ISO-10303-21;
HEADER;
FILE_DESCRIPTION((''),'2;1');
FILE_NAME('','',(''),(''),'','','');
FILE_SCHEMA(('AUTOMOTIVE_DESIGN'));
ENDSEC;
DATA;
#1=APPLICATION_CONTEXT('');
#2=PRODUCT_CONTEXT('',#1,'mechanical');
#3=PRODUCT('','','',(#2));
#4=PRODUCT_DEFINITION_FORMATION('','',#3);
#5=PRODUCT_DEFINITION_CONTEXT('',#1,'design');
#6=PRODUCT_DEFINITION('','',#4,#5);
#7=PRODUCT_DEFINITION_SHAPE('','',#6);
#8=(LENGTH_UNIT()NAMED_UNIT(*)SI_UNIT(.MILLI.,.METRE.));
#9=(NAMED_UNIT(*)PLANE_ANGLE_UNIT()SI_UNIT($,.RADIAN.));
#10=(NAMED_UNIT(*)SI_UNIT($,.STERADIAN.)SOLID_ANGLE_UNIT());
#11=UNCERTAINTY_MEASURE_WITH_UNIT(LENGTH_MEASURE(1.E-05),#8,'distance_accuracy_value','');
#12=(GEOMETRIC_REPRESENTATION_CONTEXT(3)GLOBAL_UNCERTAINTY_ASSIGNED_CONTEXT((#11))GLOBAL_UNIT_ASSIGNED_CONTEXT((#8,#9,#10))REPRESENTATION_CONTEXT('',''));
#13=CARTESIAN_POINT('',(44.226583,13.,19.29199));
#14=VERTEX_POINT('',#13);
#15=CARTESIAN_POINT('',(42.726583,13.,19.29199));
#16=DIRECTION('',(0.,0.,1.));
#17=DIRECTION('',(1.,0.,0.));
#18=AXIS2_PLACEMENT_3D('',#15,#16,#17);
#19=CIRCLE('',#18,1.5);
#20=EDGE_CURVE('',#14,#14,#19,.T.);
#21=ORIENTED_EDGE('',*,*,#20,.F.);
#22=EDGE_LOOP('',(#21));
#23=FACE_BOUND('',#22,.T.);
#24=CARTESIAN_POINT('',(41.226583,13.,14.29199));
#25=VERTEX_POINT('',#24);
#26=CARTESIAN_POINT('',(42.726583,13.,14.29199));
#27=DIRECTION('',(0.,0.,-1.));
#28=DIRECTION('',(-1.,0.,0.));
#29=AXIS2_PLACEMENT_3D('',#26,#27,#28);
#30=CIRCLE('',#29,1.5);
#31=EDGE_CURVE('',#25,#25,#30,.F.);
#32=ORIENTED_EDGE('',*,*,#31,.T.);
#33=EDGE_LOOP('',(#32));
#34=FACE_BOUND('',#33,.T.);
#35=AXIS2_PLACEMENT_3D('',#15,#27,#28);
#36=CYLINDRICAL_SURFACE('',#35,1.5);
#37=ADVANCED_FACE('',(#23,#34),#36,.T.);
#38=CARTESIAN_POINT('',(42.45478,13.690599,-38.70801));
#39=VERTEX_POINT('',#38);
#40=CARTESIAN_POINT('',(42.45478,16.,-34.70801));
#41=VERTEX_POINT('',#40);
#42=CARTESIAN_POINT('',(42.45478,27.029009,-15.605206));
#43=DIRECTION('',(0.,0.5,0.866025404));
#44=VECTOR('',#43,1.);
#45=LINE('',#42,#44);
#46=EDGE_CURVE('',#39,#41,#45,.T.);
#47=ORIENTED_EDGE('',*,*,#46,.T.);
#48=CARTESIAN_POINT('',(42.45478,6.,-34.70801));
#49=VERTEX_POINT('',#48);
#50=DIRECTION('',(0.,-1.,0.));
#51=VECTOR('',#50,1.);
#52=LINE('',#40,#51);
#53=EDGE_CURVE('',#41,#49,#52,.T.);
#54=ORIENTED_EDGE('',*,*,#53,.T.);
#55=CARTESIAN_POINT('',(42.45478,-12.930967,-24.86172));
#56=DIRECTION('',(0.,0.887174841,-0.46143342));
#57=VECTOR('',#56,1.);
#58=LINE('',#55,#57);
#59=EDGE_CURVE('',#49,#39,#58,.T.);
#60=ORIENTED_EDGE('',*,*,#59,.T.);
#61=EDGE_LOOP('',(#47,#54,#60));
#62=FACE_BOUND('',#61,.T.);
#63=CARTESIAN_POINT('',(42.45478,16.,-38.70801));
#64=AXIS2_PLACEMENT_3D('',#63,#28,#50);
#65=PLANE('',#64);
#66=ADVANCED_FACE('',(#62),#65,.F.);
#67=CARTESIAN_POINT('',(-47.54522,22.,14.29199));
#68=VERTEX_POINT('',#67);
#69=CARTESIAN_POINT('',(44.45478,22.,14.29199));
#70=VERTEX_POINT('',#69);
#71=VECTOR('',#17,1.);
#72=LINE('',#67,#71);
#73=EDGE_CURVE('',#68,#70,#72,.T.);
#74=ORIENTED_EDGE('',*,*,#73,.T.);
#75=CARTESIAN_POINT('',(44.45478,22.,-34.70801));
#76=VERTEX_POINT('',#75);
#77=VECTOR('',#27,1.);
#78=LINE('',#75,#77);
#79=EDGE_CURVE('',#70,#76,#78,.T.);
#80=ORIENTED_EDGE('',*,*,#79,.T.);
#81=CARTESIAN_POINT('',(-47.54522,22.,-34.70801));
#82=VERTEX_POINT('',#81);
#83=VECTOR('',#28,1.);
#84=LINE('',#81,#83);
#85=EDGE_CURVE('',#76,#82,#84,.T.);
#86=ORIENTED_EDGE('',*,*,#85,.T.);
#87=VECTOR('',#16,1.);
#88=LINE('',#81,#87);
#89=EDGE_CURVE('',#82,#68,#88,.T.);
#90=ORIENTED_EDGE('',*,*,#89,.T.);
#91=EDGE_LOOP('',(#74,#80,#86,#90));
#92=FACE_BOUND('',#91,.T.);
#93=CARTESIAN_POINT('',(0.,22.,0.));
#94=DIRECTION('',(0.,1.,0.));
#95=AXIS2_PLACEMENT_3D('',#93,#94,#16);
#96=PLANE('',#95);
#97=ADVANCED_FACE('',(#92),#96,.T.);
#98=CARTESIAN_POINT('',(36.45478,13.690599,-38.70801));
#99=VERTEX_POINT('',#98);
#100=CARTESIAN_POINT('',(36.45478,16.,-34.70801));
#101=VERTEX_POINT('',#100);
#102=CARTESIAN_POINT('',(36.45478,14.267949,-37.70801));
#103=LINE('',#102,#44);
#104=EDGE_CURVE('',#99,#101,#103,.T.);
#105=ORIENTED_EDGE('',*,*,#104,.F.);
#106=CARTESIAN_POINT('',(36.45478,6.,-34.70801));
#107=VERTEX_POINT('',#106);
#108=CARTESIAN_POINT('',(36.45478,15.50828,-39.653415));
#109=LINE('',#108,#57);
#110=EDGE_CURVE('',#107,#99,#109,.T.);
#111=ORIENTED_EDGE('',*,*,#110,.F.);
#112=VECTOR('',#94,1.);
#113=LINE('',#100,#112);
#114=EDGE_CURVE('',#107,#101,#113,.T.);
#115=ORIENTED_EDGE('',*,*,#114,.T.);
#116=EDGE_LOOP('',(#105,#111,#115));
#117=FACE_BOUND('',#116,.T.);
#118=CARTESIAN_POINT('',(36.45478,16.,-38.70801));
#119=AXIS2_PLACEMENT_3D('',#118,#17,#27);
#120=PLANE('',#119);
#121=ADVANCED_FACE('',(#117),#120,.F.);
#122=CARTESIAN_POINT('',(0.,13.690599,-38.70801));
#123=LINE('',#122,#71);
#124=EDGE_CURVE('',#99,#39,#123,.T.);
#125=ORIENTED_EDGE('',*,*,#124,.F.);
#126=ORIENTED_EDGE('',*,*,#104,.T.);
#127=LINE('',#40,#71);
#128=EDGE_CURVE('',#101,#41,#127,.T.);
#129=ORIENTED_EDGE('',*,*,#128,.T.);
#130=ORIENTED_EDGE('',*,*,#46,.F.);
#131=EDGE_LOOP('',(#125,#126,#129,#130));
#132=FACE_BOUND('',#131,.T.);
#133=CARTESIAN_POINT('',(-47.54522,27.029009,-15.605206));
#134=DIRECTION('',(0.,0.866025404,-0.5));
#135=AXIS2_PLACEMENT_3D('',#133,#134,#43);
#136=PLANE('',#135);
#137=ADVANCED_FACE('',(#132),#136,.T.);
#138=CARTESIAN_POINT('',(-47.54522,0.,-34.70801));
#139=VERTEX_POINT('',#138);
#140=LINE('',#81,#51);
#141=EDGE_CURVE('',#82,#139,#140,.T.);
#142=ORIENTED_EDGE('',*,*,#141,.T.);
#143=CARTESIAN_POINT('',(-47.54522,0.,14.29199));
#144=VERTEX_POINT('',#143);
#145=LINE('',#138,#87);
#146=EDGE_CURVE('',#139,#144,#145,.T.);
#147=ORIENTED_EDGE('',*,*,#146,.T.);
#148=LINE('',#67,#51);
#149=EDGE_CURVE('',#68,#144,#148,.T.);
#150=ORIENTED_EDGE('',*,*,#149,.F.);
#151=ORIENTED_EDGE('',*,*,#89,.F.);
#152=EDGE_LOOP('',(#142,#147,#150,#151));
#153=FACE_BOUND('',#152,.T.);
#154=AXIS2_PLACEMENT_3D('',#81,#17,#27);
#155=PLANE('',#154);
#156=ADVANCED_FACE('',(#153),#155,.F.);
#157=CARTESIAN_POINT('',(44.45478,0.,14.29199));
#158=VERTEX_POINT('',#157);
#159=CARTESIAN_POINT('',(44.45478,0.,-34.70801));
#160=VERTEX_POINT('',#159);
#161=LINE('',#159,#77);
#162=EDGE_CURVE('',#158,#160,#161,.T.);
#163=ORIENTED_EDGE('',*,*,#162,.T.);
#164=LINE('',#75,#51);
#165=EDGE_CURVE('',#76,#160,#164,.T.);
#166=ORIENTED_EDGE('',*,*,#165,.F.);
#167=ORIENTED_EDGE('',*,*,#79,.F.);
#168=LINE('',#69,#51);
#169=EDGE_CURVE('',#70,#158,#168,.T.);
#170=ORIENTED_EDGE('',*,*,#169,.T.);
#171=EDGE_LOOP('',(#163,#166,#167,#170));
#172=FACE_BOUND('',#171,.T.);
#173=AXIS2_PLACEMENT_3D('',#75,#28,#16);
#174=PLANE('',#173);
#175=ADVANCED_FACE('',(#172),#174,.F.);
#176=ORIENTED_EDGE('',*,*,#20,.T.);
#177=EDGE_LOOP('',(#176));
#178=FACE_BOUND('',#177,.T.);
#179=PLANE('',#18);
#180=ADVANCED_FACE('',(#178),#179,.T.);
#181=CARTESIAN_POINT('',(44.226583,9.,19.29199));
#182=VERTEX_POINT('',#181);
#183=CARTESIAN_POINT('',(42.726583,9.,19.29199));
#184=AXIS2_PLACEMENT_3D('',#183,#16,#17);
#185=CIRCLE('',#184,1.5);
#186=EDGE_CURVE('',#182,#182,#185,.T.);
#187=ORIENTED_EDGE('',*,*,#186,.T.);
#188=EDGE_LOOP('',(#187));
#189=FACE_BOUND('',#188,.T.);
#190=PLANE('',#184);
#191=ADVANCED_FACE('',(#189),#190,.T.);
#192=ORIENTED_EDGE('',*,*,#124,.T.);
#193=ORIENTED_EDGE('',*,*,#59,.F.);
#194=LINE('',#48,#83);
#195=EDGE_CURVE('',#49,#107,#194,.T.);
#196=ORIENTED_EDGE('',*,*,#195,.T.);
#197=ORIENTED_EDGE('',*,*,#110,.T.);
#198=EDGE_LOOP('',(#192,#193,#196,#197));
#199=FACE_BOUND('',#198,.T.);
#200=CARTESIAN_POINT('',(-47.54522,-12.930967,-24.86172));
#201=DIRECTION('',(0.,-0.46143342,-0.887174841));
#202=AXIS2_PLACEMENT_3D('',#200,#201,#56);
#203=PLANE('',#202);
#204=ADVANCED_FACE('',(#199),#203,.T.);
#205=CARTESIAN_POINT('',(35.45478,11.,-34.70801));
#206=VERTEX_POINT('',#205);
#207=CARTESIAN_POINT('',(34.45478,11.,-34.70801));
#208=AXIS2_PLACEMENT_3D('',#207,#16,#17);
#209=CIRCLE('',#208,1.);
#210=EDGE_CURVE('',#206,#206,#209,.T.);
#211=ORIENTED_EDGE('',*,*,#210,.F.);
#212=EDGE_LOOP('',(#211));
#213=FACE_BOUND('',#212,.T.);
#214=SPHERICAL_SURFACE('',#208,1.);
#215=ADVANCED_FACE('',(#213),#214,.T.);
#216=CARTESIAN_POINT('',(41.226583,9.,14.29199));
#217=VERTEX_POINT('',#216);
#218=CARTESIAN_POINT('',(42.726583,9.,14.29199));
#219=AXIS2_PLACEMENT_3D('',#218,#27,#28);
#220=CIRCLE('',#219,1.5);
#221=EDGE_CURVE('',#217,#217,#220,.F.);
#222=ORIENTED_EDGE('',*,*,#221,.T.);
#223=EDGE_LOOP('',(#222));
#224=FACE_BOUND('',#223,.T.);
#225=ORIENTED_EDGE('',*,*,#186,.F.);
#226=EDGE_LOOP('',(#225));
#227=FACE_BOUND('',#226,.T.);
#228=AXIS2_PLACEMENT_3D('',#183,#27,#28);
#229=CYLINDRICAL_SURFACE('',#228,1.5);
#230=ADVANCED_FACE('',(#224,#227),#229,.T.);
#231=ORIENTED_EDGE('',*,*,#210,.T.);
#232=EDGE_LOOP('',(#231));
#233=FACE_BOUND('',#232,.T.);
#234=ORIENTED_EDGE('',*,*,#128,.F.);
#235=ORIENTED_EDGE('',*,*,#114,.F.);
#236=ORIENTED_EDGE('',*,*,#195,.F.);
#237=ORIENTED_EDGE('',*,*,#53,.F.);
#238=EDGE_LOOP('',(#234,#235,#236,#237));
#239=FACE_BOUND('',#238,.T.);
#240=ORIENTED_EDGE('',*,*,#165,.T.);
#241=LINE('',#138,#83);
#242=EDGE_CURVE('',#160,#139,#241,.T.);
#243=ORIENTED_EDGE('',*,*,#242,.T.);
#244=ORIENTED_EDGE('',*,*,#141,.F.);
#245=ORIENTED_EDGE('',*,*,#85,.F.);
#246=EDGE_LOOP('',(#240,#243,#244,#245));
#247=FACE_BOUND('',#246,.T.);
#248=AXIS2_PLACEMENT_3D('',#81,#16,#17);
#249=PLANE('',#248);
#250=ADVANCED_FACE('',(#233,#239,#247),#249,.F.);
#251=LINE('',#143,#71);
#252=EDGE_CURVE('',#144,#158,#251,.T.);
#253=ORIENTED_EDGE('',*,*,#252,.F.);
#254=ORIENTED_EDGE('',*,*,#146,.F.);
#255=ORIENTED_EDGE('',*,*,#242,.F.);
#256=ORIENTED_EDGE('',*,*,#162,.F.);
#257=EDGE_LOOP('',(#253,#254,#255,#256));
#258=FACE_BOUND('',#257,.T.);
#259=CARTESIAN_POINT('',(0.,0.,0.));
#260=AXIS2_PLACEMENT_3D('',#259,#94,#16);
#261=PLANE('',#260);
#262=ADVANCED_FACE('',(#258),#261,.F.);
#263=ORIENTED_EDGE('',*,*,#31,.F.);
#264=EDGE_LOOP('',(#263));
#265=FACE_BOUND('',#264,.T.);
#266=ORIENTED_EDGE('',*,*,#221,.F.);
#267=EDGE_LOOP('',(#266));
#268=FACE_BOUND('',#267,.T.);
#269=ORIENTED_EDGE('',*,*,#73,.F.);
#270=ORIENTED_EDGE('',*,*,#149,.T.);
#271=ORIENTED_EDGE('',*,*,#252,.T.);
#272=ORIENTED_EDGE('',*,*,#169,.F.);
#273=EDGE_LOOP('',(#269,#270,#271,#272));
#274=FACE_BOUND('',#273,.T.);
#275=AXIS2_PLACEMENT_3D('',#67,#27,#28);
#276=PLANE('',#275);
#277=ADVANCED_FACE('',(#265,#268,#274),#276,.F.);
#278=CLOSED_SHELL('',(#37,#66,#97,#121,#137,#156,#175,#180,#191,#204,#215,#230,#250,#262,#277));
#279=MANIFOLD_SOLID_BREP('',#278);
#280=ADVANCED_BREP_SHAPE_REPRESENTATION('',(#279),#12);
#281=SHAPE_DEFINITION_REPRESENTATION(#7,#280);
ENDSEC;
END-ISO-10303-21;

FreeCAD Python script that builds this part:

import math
import FreeCAD as App
import Part
import Sketcher
from FreeCAD import Vector
Q = App.Units.Quantity


def add_polygon(sketch, points):
    """Adds a closed chain of lines whose ends are joined by coincident constraints."""
    first, n = sketch.GeometryCount, len(points)
    for a, b in zip(points, points[1:] + points[:1]):
        sketch.addGeometry(Part.LineSegment(App.Vector(*a, 0), App.Vector(*b, 0)), False)
    for i in range(n):
        sketch.addConstraint(Sketcher.Constraint("Coincident", first + i, 2, first + (i + 1) % n, 1))

doc = App.newDocument("Part")
body = doc.addObject("PartDesign::Body", "Body")

# Sketch on XZ plane
sketch1 = body.newObject("Sketcher::SketchObject", "Sketch")
sketch1.AttachmentSupport = (doc.getObject("XZ_Plane"), [""])
sketch1.MapMode = "FlatFace"
add_polygon(sketch1, [(-47.54522, -34.70801), (-47.54522, 14.29199), (44.45478, 14.29199), (44.45478, -34.70801)])  # lines 0-3
sketch1.addConstraint(Sketcher.Constraint("Vertical", 0))
sketch1.addConstraint(Sketcher.Constraint("Horizontal", 1))
sketch1.addConstraint(Sketcher.Constraint("Vertical", 2))
sketch1.addConstraint(Sketcher.Constraint("Horizontal", 3))
sketch1.addConstraint(Sketcher.Constraint("DistanceX", 1, 1, 1, 2, Q("92 mm")))
sketch1.addConstraint(Sketcher.Constraint("DistanceY", 0, 1, 0, 2, Q("49 mm")))
sketch1.addConstraint(Sketcher.Constraint("DistanceX", 0, 2, -1, 1, Q("47.54522 mm")))
sketch1.addConstraint(Sketcher.Constraint("DistanceY", -1, 1, 0, 2, Q("14.29199 mm")))
pad1 = body.newObject("PartDesign::Pad", "Pad")
pad1.Profile = sketch1
pad1.Length = 22
pad1.Reversed = True

# Sketch on XY plane
sketch2 = body.newObject("Sketcher::SketchObject", "Sketch001")
sketch2.AttachmentSupport = (doc.getObject("XY_Plane"), [""])
sketch2.MapMode = "FlatFace"
sketch2.AttachmentOffset = App.Placement(Vector(0, 0, -34.70801), App.Rotation())
add_polygon(sketch2, [(42.45478, 16), (42.45478, 6), (36.45478, 6), (36.45478, 16)])  # lines 0-3
sketch2.addConstraint(Sketcher.Constraint("Vertical", 0))
sketch2.addConstraint(Sketcher.Constraint("Horizontal", 1))
sketch2.addConstraint(Sketcher.Constraint("Vertical", 2))
sketch2.addConstraint(Sketcher.Constraint("Horizontal", 3))
sketch2.addConstraint(Sketcher.Constraint("DistanceX", 1, 2, 1, 1, Q("6 mm")))
sketch2.addConstraint(Sketcher.Constraint("DistanceY", 0, 2, 0, 1, Q("10 mm")))
sketch2.addConstraint(Sketcher.Constraint("DistanceY", -1, 1, 0, 2, Q("6 mm")))
sketch2.addConstraint(Sketcher.Constraint("DistanceX", -1, 1, 0, 2, Q("42.45478 mm")))
pad2 = body.newObject("PartDesign::Pad", "Pad001")
pad2.Profile = sketch2
pad2.Length = 4
pad2.Reversed = True

# Sketch on YZ plane
sketch3 = body.newObject("Sketcher::SketchObject", "Sketch002")
sketch3.AttachmentSupport = (doc.getObject("YZ_Plane"), [""])
sketch3.MapMode = "FlatFace"
sketch3.AttachmentOffset = App.Placement(Vector(0, 0, 42.45478), App.Rotation())
add_polygon(sketch3, [(16, -38.70801), (16, -34.70801), (13.690599, -38.70801)])  # lines 0-2
add_polygon(sketch3, [(13.690599, -38.70801), (6, -34.70801), (6, -38.70801)])  # lines 3-5
sketch3.addConstraint(Sketcher.Constraint("Vertical", 0))
sketch3.addConstraint(Sketcher.Constraint("Horizontal", 2))
sketch3.addConstraint(Sketcher.Constraint("Vertical", 4))
sketch3.addConstraint(Sketcher.Constraint("Horizontal", 5))
sketch3.addConstraint(Sketcher.Constraint("Coincident", 5, 2, 1, 2))
sketch3.addConstraint(Sketcher.Constraint("Horizontal", 0, 2, 3, 2))
sketch3.addConstraint(Sketcher.Constraint("DistanceY", 0, 1, 0, 2, Q("4 mm")))
sketch3.addConstraint(Sketcher.Constraint("Angle", 1, Q("-120 deg")))
sketch3.addConstraint(Sketcher.Constraint("DistanceX", -1, 1, 0, 2, Q("16 mm")))
sketch3.addConstraint(Sketcher.Constraint("DistanceX", -1, 1, 3, 2, Q("6 mm")))
sketch3.addConstraint(Sketcher.Constraint("DistanceY", 0, 2, -1, 1, Q("34.70801 mm")))
pocket1 = body.newObject("PartDesign::Pocket", "Pocket")
pocket1.Profile = sketch3
pocket1.Type = "ThroughAll"

# Sketch on XY plane
sketch4 = body.newObject("Sketcher::SketchObject", "Sketch003")
sketch4.AttachmentSupport = (doc.getObject("XY_Plane"), [""])
sketch4.MapMode = "FlatFace"
sketch4.AttachmentOffset = App.Placement(Vector(0, 0, -34.70801), App.Rotation())
sketch4.addGeometry(Part.ArcOfCircle(Part.Circle(Vector(34.45478, 11, 0), Vector(0, 0, 1), 1), math.radians(90), math.radians(270)), False)
sketch4.addGeometry(Part.LineSegment(Vector(34.45478, 12, 0), Vector(34.45478, 10, 0)), False)
sketch4.addGeometry(Part.LineSegment(Vector(34.45478, 10, 0), Vector(34.45478, 12, 0)), True)  # axis
sketch4.addConstraint(Sketcher.Constraint("Coincident", 0, 1, 1, 1))
sketch4.addConstraint(Sketcher.Constraint("Coincident", 1, 2, 0, 2))
sketch4.addConstraint(Sketcher.Constraint("Vertical", 1))
sketch4.addConstraint(Sketcher.Constraint("Vertical", 2))
sketch4.addConstraint(Sketcher.Constraint("Coincident", 2, 1, 1, 2))
sketch4.addConstraint(Sketcher.Constraint("Equal", 1, 2))
sketch4.addConstraint(Sketcher.Constraint("Radius", 0, Q("1 mm")))
sketch4.addConstraint(Sketcher.Constraint("DistanceY", -1, 1, 0, 3, Q("11 mm")))
sketch4.addConstraint(Sketcher.Constraint("DistanceX", -1, 1, 0, 3, Q("34.45478 mm")))
sketch4.addConstraint(Sketcher.Constraint("DistanceX", -1, 1, 0, 1, Q("34.45478 mm")))
revolution = body.newObject("PartDesign::Revolution", "Revolution")
revolution.Profile = sketch4
revolution.ReferenceAxis = (sketch4, ["Axis0"])
revolution.Angle = 360

# Sketch on XY plane
sketch5 = body.newObject("Sketcher::SketchObject", "Sketch004")
sketch5.AttachmentSupport = (doc.getObject("XY_Plane"), [""])
sketch5.MapMode = "FlatFace"
sketch5.AttachmentOffset = App.Placement(Vector(0, 0, 14.29199), App.Rotation())
sketch5.addGeometry(Part.Circle(Vector(42.726583, 13, 0), Vector(0, 0, 1), 1.5), False)
sketch5.addGeometry(Part.Circle(Vector(42.726583, 9, 0), Vector(0, 0, 1), 1.5), False)
sketch5.addConstraint(Sketcher.Constraint("Equal", 0, 1))
sketch5.addConstraint(Sketcher.Constraint("Vertical", 0, 3, 1, 3))
sketch5.addConstraint(Sketcher.Constraint("Diameter", 0, Q("3 mm")))
sketch5.addConstraint(Sketcher.Constraint("DistanceY", -1, 1, 0, 3, Q("13 mm")))
sketch5.addConstraint(Sketcher.Constraint("DistanceY", -1, 1, 1, 3, Q("9 mm")))
sketch5.addConstraint(Sketcher.Constraint("DistanceX", -1, 1, 0, 3, Q("42.726583 mm")))
pad3 = body.newObject("PartDesign::Pad", "Pad002")
pad3.Profile = sketch5
pad3.Length = 5

doc.recompute()
